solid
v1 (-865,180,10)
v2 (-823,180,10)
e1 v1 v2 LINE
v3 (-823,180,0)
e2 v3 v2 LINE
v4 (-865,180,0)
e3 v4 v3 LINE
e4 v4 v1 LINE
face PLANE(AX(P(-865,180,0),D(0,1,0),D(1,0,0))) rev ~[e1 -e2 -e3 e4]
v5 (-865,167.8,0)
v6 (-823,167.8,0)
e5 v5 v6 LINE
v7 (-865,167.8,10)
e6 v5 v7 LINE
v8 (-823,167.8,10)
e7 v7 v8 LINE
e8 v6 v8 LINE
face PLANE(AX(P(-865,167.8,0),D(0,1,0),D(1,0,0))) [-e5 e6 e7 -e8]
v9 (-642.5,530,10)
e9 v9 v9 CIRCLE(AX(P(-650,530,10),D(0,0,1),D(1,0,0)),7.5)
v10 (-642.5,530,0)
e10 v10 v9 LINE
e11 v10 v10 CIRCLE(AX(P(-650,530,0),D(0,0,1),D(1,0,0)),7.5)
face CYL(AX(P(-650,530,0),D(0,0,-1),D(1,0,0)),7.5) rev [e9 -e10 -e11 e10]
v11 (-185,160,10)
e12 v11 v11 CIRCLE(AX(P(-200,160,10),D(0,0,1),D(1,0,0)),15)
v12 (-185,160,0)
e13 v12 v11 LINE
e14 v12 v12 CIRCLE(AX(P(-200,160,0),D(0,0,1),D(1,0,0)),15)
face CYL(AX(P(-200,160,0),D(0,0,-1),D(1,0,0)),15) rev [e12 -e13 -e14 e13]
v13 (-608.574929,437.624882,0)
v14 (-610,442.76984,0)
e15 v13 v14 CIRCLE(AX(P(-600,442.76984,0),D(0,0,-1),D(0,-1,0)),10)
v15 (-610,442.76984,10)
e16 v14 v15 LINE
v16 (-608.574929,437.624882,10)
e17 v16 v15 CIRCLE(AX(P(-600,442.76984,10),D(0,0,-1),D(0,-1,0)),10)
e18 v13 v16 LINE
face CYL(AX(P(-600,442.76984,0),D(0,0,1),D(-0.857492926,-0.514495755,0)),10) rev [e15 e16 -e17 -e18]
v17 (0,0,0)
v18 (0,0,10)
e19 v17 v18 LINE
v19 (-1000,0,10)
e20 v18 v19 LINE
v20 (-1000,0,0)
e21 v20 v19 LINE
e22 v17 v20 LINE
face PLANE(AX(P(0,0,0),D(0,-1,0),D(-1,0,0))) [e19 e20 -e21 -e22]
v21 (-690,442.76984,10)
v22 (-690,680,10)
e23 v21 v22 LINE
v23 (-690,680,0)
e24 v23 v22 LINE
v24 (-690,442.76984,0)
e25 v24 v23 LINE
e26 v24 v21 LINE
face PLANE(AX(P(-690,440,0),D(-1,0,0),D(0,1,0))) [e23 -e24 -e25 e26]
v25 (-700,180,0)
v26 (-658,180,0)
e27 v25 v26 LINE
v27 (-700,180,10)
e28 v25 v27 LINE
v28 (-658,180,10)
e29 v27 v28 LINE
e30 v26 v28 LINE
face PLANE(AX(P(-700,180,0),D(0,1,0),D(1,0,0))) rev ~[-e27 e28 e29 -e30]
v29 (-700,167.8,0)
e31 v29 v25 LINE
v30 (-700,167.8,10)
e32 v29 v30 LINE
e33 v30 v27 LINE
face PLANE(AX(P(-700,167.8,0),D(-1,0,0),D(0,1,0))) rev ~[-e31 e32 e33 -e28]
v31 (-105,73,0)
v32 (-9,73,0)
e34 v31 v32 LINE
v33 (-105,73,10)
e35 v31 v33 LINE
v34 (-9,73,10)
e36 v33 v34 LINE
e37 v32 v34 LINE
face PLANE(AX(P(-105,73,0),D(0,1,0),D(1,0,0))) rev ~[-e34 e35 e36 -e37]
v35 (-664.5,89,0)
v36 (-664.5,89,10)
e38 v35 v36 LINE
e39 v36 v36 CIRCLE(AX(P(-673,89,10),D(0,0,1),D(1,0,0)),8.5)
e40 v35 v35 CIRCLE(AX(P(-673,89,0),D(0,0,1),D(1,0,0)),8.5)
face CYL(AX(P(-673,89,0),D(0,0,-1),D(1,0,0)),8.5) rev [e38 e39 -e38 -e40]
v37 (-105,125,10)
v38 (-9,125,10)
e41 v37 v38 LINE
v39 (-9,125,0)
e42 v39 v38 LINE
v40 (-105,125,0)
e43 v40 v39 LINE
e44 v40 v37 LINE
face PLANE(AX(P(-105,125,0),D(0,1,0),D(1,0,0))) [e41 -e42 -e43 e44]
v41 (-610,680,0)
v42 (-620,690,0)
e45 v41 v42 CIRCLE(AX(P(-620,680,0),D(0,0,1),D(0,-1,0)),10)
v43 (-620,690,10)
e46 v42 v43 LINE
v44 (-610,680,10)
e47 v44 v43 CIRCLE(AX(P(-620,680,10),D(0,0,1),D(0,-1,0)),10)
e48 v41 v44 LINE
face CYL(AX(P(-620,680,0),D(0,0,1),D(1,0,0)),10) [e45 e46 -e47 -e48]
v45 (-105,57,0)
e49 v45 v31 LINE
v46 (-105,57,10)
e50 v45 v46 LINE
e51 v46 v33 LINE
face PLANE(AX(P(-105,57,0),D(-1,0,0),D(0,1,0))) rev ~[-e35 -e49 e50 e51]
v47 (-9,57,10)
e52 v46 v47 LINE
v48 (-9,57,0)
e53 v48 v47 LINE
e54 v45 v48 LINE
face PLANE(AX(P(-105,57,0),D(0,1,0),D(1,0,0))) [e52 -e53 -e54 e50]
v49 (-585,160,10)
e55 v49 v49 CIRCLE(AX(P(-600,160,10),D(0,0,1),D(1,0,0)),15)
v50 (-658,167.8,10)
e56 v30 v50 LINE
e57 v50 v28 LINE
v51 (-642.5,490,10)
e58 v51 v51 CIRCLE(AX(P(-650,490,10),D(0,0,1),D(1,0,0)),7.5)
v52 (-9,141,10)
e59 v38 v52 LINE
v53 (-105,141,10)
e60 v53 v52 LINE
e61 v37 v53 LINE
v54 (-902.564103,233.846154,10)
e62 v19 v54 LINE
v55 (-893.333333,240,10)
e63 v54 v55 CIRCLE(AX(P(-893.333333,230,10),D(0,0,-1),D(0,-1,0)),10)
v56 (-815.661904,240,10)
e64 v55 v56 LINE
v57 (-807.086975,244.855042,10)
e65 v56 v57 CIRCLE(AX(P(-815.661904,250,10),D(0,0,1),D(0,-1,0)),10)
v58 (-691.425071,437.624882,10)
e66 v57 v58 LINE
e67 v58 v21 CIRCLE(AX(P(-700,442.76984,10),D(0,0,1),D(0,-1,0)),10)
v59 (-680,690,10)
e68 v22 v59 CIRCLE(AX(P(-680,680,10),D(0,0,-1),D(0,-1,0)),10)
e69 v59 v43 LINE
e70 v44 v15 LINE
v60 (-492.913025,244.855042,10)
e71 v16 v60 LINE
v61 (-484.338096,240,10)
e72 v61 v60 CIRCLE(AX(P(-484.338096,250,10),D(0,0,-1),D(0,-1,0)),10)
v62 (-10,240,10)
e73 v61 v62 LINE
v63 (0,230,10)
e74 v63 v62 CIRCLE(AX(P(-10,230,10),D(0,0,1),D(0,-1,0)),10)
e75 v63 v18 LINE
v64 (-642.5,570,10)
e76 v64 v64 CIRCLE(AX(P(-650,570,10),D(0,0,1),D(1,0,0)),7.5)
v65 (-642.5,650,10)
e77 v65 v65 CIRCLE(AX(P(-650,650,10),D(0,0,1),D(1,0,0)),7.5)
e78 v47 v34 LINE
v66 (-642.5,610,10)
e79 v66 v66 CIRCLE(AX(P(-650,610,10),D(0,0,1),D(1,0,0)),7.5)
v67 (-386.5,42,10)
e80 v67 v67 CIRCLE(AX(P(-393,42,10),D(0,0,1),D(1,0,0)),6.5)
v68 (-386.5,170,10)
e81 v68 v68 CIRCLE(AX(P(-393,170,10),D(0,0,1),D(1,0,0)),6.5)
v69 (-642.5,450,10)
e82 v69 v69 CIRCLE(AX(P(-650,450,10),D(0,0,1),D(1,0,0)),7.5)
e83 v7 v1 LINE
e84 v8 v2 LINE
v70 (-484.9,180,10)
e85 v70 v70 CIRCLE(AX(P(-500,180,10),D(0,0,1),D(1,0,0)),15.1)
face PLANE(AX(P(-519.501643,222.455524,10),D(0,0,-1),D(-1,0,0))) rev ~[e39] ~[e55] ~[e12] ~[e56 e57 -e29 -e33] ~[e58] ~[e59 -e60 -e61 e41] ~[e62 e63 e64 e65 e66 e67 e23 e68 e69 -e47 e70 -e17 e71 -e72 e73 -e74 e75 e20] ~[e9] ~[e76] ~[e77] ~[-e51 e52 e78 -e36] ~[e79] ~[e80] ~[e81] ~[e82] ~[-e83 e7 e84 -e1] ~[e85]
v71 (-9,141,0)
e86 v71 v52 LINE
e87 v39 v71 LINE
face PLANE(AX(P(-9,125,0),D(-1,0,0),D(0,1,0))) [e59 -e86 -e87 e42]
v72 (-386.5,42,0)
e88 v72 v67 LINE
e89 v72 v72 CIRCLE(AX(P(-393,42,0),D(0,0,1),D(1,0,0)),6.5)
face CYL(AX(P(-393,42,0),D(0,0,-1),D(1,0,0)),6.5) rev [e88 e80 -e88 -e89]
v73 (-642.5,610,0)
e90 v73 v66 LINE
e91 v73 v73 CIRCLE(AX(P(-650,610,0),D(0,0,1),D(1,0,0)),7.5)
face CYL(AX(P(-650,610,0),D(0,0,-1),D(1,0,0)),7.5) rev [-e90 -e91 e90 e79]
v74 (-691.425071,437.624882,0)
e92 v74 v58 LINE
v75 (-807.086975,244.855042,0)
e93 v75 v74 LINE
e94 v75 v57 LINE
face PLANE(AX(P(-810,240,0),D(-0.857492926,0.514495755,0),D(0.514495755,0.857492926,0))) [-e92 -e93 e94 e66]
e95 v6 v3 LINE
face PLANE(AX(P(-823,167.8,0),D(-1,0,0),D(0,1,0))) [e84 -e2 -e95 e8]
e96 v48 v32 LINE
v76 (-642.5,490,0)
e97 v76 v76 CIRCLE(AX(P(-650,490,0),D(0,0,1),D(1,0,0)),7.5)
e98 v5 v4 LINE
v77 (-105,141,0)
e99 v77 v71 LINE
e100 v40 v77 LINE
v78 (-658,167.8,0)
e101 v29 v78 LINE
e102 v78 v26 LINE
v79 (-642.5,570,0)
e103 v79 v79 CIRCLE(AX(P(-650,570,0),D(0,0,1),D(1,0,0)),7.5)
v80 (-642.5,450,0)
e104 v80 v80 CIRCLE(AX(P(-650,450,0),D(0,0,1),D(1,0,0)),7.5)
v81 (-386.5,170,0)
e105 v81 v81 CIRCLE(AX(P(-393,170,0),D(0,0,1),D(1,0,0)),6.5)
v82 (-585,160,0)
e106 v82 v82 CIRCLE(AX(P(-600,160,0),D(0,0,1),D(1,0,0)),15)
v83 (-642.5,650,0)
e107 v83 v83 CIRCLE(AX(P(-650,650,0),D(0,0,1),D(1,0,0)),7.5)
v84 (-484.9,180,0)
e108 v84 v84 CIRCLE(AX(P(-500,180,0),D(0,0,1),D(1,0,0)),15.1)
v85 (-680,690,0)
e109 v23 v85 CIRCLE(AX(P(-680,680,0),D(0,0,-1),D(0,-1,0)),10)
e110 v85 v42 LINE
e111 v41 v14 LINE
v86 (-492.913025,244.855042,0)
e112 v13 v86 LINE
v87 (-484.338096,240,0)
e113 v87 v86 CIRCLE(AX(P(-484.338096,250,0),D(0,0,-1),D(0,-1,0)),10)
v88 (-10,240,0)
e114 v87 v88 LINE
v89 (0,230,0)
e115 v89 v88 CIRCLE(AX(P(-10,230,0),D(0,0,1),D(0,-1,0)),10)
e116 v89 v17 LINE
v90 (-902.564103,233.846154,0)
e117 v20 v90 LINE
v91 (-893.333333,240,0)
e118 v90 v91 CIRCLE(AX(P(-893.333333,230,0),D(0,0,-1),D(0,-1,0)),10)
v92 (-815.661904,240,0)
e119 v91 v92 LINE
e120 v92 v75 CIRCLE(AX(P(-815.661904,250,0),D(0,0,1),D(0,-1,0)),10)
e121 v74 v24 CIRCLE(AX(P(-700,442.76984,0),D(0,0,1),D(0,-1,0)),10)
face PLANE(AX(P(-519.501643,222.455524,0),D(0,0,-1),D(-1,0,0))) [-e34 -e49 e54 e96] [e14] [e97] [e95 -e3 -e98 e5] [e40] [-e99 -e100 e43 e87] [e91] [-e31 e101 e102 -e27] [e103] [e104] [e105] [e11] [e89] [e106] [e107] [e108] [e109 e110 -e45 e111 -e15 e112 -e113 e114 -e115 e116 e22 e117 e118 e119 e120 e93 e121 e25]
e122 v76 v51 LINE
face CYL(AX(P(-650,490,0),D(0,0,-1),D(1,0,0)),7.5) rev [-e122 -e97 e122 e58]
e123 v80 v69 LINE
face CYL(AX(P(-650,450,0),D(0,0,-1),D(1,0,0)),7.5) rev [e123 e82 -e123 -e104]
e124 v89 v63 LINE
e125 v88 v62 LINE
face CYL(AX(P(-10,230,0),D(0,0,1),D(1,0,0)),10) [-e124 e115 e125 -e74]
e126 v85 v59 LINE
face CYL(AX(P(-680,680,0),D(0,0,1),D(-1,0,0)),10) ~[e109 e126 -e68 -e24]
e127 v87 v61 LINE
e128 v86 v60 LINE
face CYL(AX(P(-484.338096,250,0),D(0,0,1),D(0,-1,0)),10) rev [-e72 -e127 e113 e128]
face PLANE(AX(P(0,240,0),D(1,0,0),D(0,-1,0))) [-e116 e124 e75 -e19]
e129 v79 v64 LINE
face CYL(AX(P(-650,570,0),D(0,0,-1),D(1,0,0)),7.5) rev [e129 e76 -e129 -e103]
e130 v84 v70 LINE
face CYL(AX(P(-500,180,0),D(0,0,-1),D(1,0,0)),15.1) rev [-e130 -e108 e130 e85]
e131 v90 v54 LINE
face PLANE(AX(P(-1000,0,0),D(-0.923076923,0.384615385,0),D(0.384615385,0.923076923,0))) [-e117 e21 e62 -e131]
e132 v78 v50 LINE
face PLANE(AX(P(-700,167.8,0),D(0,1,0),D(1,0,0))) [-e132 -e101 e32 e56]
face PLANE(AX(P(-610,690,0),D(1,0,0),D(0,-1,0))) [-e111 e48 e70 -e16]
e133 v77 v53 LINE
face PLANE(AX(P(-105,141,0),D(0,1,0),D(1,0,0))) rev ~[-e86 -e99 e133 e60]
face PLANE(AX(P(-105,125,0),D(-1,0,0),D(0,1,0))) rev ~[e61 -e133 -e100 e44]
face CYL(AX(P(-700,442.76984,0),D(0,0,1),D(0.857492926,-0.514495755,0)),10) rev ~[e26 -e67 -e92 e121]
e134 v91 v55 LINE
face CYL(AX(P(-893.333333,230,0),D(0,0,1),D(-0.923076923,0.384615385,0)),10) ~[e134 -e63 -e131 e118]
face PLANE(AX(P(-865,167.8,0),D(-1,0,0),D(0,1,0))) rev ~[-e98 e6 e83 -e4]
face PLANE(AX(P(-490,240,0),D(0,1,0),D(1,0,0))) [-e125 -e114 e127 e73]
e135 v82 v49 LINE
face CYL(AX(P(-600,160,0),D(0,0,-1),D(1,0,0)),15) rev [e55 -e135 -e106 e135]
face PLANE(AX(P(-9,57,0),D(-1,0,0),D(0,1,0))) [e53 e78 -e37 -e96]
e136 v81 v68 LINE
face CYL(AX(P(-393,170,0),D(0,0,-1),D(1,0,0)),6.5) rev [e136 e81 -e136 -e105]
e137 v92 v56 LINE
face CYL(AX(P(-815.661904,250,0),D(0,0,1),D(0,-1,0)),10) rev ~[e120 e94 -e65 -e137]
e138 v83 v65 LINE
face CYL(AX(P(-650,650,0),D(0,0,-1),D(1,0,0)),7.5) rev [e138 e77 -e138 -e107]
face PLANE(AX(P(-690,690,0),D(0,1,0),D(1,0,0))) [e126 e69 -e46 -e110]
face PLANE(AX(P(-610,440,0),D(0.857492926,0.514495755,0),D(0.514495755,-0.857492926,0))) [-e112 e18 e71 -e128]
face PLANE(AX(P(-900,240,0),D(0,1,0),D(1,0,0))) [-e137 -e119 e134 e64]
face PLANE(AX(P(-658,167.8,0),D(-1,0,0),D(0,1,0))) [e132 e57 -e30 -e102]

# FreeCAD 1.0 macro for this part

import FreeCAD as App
import Part
import Sketcher
from FreeCAD import Vector


def edges_at(feature, points):
    """Names of the edges that pass closest to the given points."""
    edges = feature.Shape.Edges
    near = lambda p: min(range(len(edges)), key=lambda i: edges[i].distToShape(Part.Vertex(*p))[0])
    return sorted({f"Edge{near(p) + 1}" for p in points})


def add_polygon(sketch, points):
    """Adds a closed chain of lines whose ends are joined by coincident constraints."""
    first, n = sketch.GeometryCount, len(points)
    for a, b in zip(points, points[1:] + points[:1]):
        sketch.addGeometry(Part.LineSegment(App.Vector(*a, 0), App.Vector(*b, 0)), False)
    for i in range(n):
        sketch.addConstraint(Sketcher.Constraint("Coincident", first + i, 2, first + (i + 1) % n, 1))

doc = App.newDocument("Part")
params = doc.addObject("Spreadsheet::Sheet", "Params")
for row, (alias, value) in enumerate([
    ("sketch1_diameter", "30 mm"),
    ("sketch1_diameter2", "13 mm"),
    ("sketch1_diameter3", "17 mm"),
    ("sketch1_diameter4", "15 mm"),
    ("sketch1_diameter5", "30.2 mm"),
    ("pad1_length", "10 mm"),
    ("fillet_radius", "10 mm"),
], start=1):
    params.set(f"A{row}", alias)
    params.set(f"B{row}", "=" + value)
    params.setAlias(f"B{row}", alias)

body = doc.addObject("PartDesign::Body", "Body")

# Sketch on XY plane
sketch1 = body.newObject("Sketcher::SketchObject", "Sketch")
sketch1.AttachmentSupport = (doc.getObject("XY_Plane"), [""])
sketch1.MapMode = "FlatFace"
add_polygon(sketch1, [(-1000, 0), (0, 0), (0, 240), (-490, 240), (-610, 440), (-610, 690), (-690, 690), (-690, 440), (-810, 240), (-900, 240)])  # lines 0-9
add_polygon(sketch1, [(-105, 57), (-105, 73), (-9, 73), (-9, 57)])  # lines 10-13
add_polygon(sketch1, [(-105, 125), (-105, 141), (-9, 141), (-9, 125)])  # lines 14-17
sketch1.addGeometry(Part.Circle(Vector(-200, 160, 0), Vector(0, 0, 1), 15), False)  # 18
sketch1.addGeometry(Part.Circle(Vector(-393, 42, 0), Vector(0, 0, 1), 6), False)  # 19
sketch1.addGeometry(Part.Circle(Vector(-393, 170, 0), Vector(0, 0, 1), 6), False)  # 20
sketch1.addGeometry(Part.Circle(Vector(-500, 180, 0), Vector(0, 0, 1), 15), False)  # 21
sketch1.addGeometry(Part.Circle(Vector(-600, 160, 0), Vector(0, 0, 1), 15), False)  # 22
sketch1.addGeometry(Part.Circle(Vector(-673, 89, 0), Vector(0, 0, 1), 8), False)  # 23
add_polygon(sketch1, [(-700, 168), (-700, 180), (-658, 180), (-658, 168)])  # lines 24-27
add_polygon(sketch1, [(-865, 168), (-865, 180), (-823, 180), (-823, 168)])  # lines 28-31
sketch1.addGeometry(Part.Circle(Vector(-650, 450, 0), Vector(0, 0, 1), 8), False)  # 32
sketch1.addGeometry(Part.Circle(Vector(-650, 490, 0), Vector(0, 0, 1), 8), False)  # 33
sketch1.addGeometry(Part.Circle(Vector(-650, 530, 0), Vector(0, 0, 1), 8), False)  # 34
sketch1.addGeometry(Part.Circle(Vector(-650, 570, 0), Vector(0, 0, 1), 8), False)  # 35
sketch1.addGeometry(Part.Circle(Vector(-650, 610, 0), Vector(0, 0, 1), 8), False)  # 36
sketch1.addGeometry(Part.Circle(Vector(-650, 650, 0), Vector(0, 0, 1), 8), False)  # 37
sketch1.addConstraint([
    Sketcher.Constraint("Horizontal", 0),
    Sketcher.Constraint("Vertical", 1),
    Sketcher.Constraint("Horizontal", 2),
    Sketcher.Constraint("Vertical", 4),
    Sketcher.Constraint("Horizontal", 5),
    Sketcher.Constraint("Vertical", 6),
    Sketcher.Constraint("Horizontal", 8),
    Sketcher.Constraint("Vertical", 10),
    Sketcher.Constraint("Horizontal", 11),
    Sketcher.Constraint("Vertical", 12),
    Sketcher.Constraint("Horizontal", 13),
    Sketcher.Constraint("Vertical", 14),
    Sketcher.Constraint("Horizontal", 15),
    Sketcher.Constraint("Vertical", 16),
    Sketcher.Constraint("Horizontal", 17),
    Sketcher.Constraint("Vertical", 24),
    Sketcher.Constraint("Horizontal", 25),
    Sketcher.Constraint("Vertical", 26),
    Sketcher.Constraint("Horizontal", 27),
    Sketcher.Constraint("Vertical", 28),
    Sketcher.Constraint("Horizontal", 29),
    Sketcher.Constraint("Vertical", 30),
    Sketcher.Constraint("Horizontal", 31),
    Sketcher.Constraint("Coincident", 0, 2, -1, 1),
    Sketcher.Constraint("Equal", 19, 20),
    Sketcher.Constraint("Equal", 18, 22),
    Sketcher.Constraint("Equal", 32, 33),
    Sketcher.Constraint("Equal", 33, 34),
    Sketcher.Constraint("Equal", 34, 35),
    Sketcher.Constraint("Equal", 35, 36),
    Sketcher.Constraint("Equal", 36, 37),
    Sketcher.Constraint("Horizontal", 18, 3, 22, 3),
    Sketcher.Constraint("Horizontal", 3, 2, 6, 2),
    Sketcher.Constraint("Horizontal", 2, 2, 7, 2),
    Sketcher.Constraint("Horizontal", 21, 3, 24, 2),
    Sketcher.Constraint("Horizontal", 25, 2, 28, 2),
    Sketcher.Constraint("Horizontal", 27, 2, 30, 2),
    Sketcher.Constraint("Vertical", 19, 3, 20, 3),
    Sketcher.Constraint("Vertical", 32, 3, 33, 3),
    Sketcher.Constraint("Vertical", 33, 3, 34, 3),
    Sketcher.Constraint("Vertical", 34, 3, 35, 3),
    Sketcher.Constraint("Vertical", 35, 3, 36, 3),
    Sketcher.Constraint("Vertical", 36, 3, 37, 3),
    Sketcher.Constraint("Vertical", 13, 2, 14, 2),
    Sketcher.Constraint("Vertical", 12, 2, 15, 2),
    Sketcher.Constraint("Equal", 27, 29),
    Sketcher.Constraint("Equal", 12, 14),
    Sketcher.Constraint("Equal", 3, 7),
    Sketcher.Constraint("Diameter", 18, 30.0),
    Sketcher.Constraint("Diameter", 19, 13.0),
    Sketcher.Constraint("Diameter", 23, 17.0),
    Sketcher.Constraint("Diameter", 32, 15.0),
    Sketcher.Constraint("Diameter", 21, 30.2),
    Sketcher.Constraint("DistanceX", 0, 1, 0, 2, 1000.0),
    Sketcher.Constraint("DistanceX", 2, 2, 2, 1, 490.0),
    Sketcher.Constraint("DistanceX", 5, 2, 5, 1, 80.0),
    Sketcher.Constraint("DistanceX", 8, 2, 8, 1, 90.0),
    Sketcher.Constraint("DistanceX", 11, 1, 11, 2, 96.0),
    Sketcher.Constraint("DistanceX", 25, 1, 25, 2, 42.0),
    Sketcher.Constraint("DistanceY", 1, 1, 1, 2, 240.0),
    Sketcher.Constraint("DistanceY", 4, 1, 4, 2, 250.0),
    Sketcher.Constraint("DistanceY", 10, 1, 10, 2, 16.0),
    Sketcher.Constraint("Distance", 9, 260.0),
    Sketcher.Constraint("DistanceY", 24, 1, 24, 2, 12.2),
    Sketcher.Constraint("DistanceX", 18, 3, -1, 1, 200.0),
    Sketcher.Constraint("DistanceY", -1, 1, 18, 3, 160.0),
    Sketcher.Constraint("DistanceX", 19, 3, -1, 1, 393.0),
    Sketcher.Constraint("DistanceY", -1, 1, 19, 3, 42.0),
    Sketcher.Constraint("DistanceY", -1, 1, 20, 3, 170.0),
    Sketcher.Constraint("DistanceX", 21, 3, -1, 1, 500.0),
    Sketcher.Constraint("DistanceY", -1, 1, 21, 3, 180.0),
    Sketcher.Constraint("DistanceX", 22, 3, -1, 1, 600.0),
    Sketcher.Constraint("DistanceX", 23, 3, -1, 1, 673.0),
    Sketcher.Constraint("DistanceY", -1, 1, 23, 3, 89.0),
    Sketcher.Constraint("DistanceX", 32, 3, -1, 1, 650.0),
    Sketcher.Constraint("DistanceY", -1, 1, 32, 3, 450.0),
    Sketcher.Constraint("DistanceY", -1, 1, 33, 3, 490.0),
    Sketcher.Constraint("DistanceY", -1, 1, 34, 3, 530.0),
    Sketcher.Constraint("DistanceY", -1, 1, 35, 3, 570.0),
    Sketcher.Constraint("DistanceY", -1, 1, 36, 3, 610.0),
    Sketcher.Constraint("DistanceY", -1, 1, 37, 3, 650.0),
    Sketcher.Constraint("DistanceY", -1, 1, 3, 2, 440.0),
    Sketcher.Constraint("DistanceX", 10, 2, -1, 1, 105.0),
    Sketcher.Constraint("DistanceY", -1, 1, 10, 2, 73.0),
    Sketcher.Constraint("DistanceY", -1, 1, 14, 2, 141.0),
    Sketcher.Constraint("DistanceX", 24, 2, -1, 1, 700.0),
    Sketcher.Constraint("DistanceX", 28, 2, -1, 1, 865.0),
])
sketch1.setExpression("Constraints[74]", "Params.sketch1_diameter")
sketch1.setExpression("Constraints[75]", "Params.sketch1_diameter2")
sketch1.setExpression("Constraints[76]", "Params.sketch1_diameter3")
sketch1.setExpression("Constraints[77]", "Params.sketch1_diameter4")
sketch1.setExpression("Constraints[78]", "Params.sketch1_diameter5")
pad1 = body.newObject("PartDesign::Pad", "Pad")
pad1.Profile = sketch1
pad1.setExpression("Length", "Params.pad1_length")
doc.recompute()

fillet = body.newObject("PartDesign::Fillet", "Fillet")
fillet.Base = (pad1, edges_at(pad1, [
    (-900, 240, 5),
    (-810, 240, 5),
    (-690, 440, 5),
    (-690, 690, 5),
    (-610, 690, 5),
    (-610, 440, 5),
    (-490, 240, 5),
    (0, 240, 5),
]))
fillet.setExpression("Radius", "Params.fillet_radius")

doc.recompute()
